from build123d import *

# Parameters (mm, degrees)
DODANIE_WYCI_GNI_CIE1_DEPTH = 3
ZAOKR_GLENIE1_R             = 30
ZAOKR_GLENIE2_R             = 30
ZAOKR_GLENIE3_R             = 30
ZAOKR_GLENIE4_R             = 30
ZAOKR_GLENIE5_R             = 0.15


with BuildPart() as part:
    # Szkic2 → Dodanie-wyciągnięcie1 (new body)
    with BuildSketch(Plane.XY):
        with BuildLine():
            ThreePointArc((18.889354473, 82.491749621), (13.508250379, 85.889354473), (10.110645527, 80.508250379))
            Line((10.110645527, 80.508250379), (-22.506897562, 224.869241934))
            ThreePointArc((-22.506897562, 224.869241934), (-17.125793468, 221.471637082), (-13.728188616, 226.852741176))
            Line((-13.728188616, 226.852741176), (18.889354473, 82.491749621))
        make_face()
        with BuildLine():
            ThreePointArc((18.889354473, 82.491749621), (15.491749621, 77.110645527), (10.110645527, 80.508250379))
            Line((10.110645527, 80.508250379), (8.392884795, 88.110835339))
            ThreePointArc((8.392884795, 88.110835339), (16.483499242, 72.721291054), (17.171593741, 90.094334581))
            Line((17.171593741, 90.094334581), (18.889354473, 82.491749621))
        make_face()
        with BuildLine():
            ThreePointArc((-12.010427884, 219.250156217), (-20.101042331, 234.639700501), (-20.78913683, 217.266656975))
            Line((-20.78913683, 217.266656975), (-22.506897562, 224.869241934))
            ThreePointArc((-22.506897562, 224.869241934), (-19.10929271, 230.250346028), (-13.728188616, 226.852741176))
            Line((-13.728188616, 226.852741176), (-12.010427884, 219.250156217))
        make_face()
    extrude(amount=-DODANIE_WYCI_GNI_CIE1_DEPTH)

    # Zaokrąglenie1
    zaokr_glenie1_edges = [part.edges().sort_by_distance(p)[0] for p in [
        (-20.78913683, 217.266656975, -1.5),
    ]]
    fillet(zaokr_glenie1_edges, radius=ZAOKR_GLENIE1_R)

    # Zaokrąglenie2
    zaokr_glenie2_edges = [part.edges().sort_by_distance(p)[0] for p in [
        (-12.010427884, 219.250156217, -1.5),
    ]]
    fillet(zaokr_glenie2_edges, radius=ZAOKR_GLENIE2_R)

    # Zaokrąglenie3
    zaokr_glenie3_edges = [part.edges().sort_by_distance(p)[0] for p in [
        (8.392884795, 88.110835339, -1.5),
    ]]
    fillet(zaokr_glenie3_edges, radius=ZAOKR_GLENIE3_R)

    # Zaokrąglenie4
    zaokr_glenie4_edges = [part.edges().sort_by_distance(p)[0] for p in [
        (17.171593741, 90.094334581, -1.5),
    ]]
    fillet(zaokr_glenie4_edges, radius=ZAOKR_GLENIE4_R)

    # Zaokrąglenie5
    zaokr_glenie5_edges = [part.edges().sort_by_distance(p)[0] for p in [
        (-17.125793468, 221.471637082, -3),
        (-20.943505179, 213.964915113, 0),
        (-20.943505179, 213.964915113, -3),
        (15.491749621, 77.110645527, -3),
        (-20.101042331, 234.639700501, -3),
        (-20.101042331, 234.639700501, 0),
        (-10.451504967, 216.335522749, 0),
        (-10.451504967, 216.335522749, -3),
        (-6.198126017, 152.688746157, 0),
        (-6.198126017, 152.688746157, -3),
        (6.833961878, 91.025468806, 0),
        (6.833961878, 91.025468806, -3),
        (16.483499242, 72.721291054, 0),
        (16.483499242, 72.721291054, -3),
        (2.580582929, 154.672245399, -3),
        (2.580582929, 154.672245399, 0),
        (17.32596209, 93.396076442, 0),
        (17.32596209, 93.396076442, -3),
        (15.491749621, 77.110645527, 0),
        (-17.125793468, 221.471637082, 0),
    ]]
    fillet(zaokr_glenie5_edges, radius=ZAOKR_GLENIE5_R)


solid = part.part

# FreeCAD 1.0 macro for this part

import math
import FreeCAD as App
import Part
import Sketcher

V = App.Vector


def edges_at(feature, points):
    """Names of the edges that pass closest to the given points."""
    edges = feature.Shape.Edges
    near = lambda p: min(range(len(edges)), key=lambda i: edges[i].distToShape(Part.Vertex(*p))[0])
    return sorted({f"Edge{near(p) + 1}" for p in points})

doc = App.newDocument("Part")
body = doc.addObject("PartDesign::Body", "Body")

# Sketch on XY plane
sketch1 = body.newObject("Sketcher::SketchObject", "Sketch")
sketch1.AttachmentSupport = (doc.getObject("XY_Plane"), [""])
sketch1.MapMode = "FlatFace"
sketch1.addGeometry(Part.LineSegment(V(-20.8, 217.3, 0), V(8.4, 88.1, 0)), False)
sketch1.addGeometry(Part.ArcOfCircle(Part.Circle(V(14.5, 81.5, 0), V(0, 0, 1), 9), math.radians(133), math.radians(433)), False)
sketch1.addGeometry(Part.LineSegment(V(17.2, 90.1, 0), V(-12, 219.3, 0)), False)
sketch1.addGeometry(Part.ArcOfCircle(Part.Circle(V(-18.1, 225.9, 0), V(0, 0, 1), 9), math.radians(-47), math.radians(253)), False)
sketch1.addGeometry(Part.Circle(V(14.5, 81.5, 0), V(0, 0, 1), 4.5), False)
sketch1.addGeometry(Part.Circle(V(-18.1, 225.9, 0), V(0, 0, 1), 4.5), False)
sketch1.addConstraint(Sketcher.Constraint("Coincident", 0, 2, 1, 1))
sketch1.addConstraint(Sketcher.Constraint("Coincident", 1, 2, 2, 1))
sketch1.addConstraint(Sketcher.Constraint("Coincident", 2, 2, 3, 1))
sketch1.addConstraint(Sketcher.Constraint("Coincident", 3, 2, 0, 1))
sketch1.addConstraint(Sketcher.Constraint("Coincident", 4, 3, 1, 3))
sketch1.addConstraint(Sketcher.Constraint("Coincident", 5, 3, 3, 3))
sketch1.addConstraint(Sketcher.Constraint("Equal", 1, 3))
sketch1.addConstraint(Sketcher.Constraint("Equal", 4, 5))
sketch1.addConstraint(Sketcher.Constraint("Parallel", 0, 2))
sketch1.addConstraint(Sketcher.Constraint("Equal", 0, 2))
sketch1.addConstraint(Sketcher.Constraint("Diameter", 4, 9.0))
sketch1.addConstraint(Sketcher.Constraint("Radius", 1, 9.0))
sketch1.addConstraint(Sketcher.Constraint("DistanceX", -1, 1, 1, 3, 14.5))
sketch1.addConstraint(Sketcher.Constraint("DistanceY", -1, 1, 1, 3, 81.5))
sketch1.addConstraint(Sketcher.Constraint("DistanceY", 0, 2, 1, 2, 1.983499))
sketch1.addConstraint(Sketcher.Constraint("DistanceY", -1, 1, 3, 3, 225.860992))
sketch1.addConstraint(Sketcher.Constraint("DistanceX", 0, 2, 1, 2, 8.778709))
sketch1.addConstraint(Sketcher.Constraint("DistanceX", 2, 2, 1, 2, 29.182022))
pad1 = body.newObject("PartDesign::Pad", "Pad")
pad1.Profile = sketch1
pad1.Length = 3
pad1.Reversed = True
doc.recompute()

fillet = body.newObject("PartDesign::Fillet", "Fillet")
fillet.Base = (pad1, edges_at(pad1, [(-20.789, 217.267, -1.5)]))
fillet.Radius = 30
doc.recompute()

fillet2 = body.newObject("PartDesign::Fillet", "Fillet001")
fillet2.Base = (fillet, edges_at(fillet, [(-12.01, 219.25, -1.5)]))
fillet2.Radius = 30
doc.recompute()

fillet3 = body.newObject("PartDesign::Fillet", "Fillet002")
fillet3.Base = (fillet2, edges_at(fillet2, [(8.393, 88.111, -1.5)]))
fillet3.Radius = 30
doc.recompute()

fillet4 = body.newObject("PartDesign::Fillet", "Fillet003")
fillet4.Base = (fillet3, edges_at(fillet3, [(17.172, 90.094, -1.5)]))
fillet4.Radius = 30
doc.recompute()

fillet5 = body.newObject("PartDesign::Fillet", "Fillet004")
fillet5.Base = (fillet4, edges_at(fillet4, [
    (-13.728, 226.853, -3),
    (-20.944, 213.965, 0),
    (-20.944, 213.965, -3),
    (10.111, 80.508, -3),
    (-20.101, 234.64, -3),
    (-20.101, 234.64, 0),
    (-10.452, 216.336, 0),
    (-10.452, 216.336, -3),
    (-6.198, 152.689, 0),
    (-6.198, 152.689, -3),
    (6.834, 91.025, 0),
    (6.834, 91.025, -3),
    (16.483, 72.721, 0),
    (16.483, 72.721, -3),
    (2.581, 154.672, -3),
    (2.581, 154.672, 0),
    (17.326, 93.396, 0),
    (17.326, 93.396, -3),
    (10.111, 80.508, 0),
    (-13.728, 226.853, 0),
]))
fillet5.Radius = 0.15

doc.recompute()
